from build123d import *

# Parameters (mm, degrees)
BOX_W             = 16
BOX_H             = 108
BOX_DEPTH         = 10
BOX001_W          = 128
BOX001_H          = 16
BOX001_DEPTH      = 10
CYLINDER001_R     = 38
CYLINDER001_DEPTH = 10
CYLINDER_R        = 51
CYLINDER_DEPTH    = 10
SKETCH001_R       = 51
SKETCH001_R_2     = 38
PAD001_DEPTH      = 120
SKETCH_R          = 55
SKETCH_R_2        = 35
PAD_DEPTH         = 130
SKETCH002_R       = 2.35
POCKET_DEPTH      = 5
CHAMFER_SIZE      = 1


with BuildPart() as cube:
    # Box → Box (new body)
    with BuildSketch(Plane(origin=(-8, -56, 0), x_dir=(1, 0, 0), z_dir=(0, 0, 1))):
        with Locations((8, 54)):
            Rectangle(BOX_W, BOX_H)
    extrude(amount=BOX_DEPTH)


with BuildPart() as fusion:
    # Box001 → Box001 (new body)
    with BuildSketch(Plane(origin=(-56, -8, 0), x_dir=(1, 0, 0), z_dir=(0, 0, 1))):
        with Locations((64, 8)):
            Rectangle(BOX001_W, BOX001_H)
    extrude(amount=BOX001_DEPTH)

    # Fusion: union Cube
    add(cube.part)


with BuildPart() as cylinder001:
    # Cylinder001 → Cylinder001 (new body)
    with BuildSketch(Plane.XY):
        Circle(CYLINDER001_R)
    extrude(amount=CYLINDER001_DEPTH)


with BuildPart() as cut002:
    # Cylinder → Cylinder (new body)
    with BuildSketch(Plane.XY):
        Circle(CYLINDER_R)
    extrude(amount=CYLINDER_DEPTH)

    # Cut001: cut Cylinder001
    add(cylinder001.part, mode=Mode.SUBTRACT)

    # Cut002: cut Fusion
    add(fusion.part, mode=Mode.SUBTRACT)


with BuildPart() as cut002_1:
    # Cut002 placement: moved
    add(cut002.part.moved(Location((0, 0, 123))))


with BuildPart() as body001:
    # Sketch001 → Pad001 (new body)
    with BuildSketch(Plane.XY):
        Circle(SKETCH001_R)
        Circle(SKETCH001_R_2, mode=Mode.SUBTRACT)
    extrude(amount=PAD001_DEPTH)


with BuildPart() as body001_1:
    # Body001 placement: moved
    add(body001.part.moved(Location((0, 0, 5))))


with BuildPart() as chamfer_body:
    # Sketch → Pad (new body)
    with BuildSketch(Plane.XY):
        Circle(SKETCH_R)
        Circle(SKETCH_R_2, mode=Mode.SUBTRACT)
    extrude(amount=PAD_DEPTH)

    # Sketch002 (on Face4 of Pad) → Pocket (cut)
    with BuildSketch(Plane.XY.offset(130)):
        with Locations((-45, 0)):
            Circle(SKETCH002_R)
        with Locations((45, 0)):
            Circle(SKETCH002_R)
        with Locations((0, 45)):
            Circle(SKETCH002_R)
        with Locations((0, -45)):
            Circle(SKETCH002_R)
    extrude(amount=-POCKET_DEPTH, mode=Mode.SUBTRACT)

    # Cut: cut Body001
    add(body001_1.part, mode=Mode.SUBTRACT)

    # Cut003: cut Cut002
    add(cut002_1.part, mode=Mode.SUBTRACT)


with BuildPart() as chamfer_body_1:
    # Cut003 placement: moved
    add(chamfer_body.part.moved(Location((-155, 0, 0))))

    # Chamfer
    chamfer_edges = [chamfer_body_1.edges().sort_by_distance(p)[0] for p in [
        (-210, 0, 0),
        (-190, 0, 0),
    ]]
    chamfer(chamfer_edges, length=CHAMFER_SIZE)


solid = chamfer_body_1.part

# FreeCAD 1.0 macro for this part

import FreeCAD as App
import Part
import Sketcher

V = App.Vector


def edges_at(feature, points):
    """Names of the edges that pass closest to the given points."""
    edges = feature.Shape.Edges
    near = lambda p: min(range(len(edges)), key=lambda i: edges[i].distToShape(Part.Vertex(*p))[0])
    return sorted({f"Edge{near(p) + 1}" for p in points})

doc = App.newDocument("Part")
body = doc.addObject("PartDesign::Body", "Body")

sketch1 = body.newObject("Sketcher::SketchObject", "Sketch")
sketch1.AttachmentSupport = (doc.getObject("XY_Plane"), [""])
sketch1.MapMode = "FlatFace"
sketch1.addGeometry([
    Part.LineSegment(V(-8, 52, 0), V(-8, -56, 0)),
    Part.LineSegment(V(-8, -56, 0), V(8, -56, 0)),
    Part.LineSegment(V(8, -56, 0), V(8, 52, 0)),
    Part.LineSegment(V(8, 52, 0), V(-8, 52, 0)),
], False)
sketch1.addConstraint([
    Sketcher.Constraint("Coincident", 0, 2, 1, 1),
    Sketcher.Constraint("Coincident", 1, 2, 2, 1),
    Sketcher.Constraint("Coincident", 2, 2, 3, 1),
    Sketcher.Constraint("Coincident", 3, 2, 0, 1),
    Sketcher.Constraint("Vertical", 0),
    Sketcher.Constraint("Horizontal", 1),
    Sketcher.Constraint("Vertical", 2),
    Sketcher.Constraint("Horizontal", 3),
    Sketcher.Constraint("DistanceX", 1, 1, 1, 2, 16.0),
    Sketcher.Constraint("DistanceY", 0, 2, 0, 1, 108.0),
    Sketcher.Constraint("DistanceX", 0, 2, -1, 1, 8.0),
    Sketcher.Constraint("DistanceY", 0, 2, -1, 1, 56.0),
])
pad1 = body.newObject("PartDesign::Pad", "Pad")
pad1.Profile = sketch1
pad1.Length = 10
body2 = doc.addObject("PartDesign::Body", "Body001")

sketch2 = body2.newObject("Sketcher::SketchObject", "Sketch001")
sketch2.AttachmentSupport = (doc.getObject("XY_Plane001"), [""])
sketch2.MapMode = "FlatFace"
sketch2.addGeometry([
    Part.LineSegment(V(-56, 8, 0), V(-56, -8, 0)),
    Part.LineSegment(V(-56, -8, 0), V(72, -8, 0)),
    Part.LineSegment(V(72, -8, 0), V(72, 8, 0)),
    Part.LineSegment(V(72, 8, 0), V(-56, 8, 0)),
], False)
sketch2.addConstraint([
    Sketcher.Constraint("Coincident", 0, 2, 1, 1),
    Sketcher.Constraint("Coincident", 1, 2, 2, 1),
    Sketcher.Constraint("Coincident", 2, 2, 3, 1),
    Sketcher.Constraint("Coincident", 3, 2, 0, 1),
    Sketcher.Constraint("Vertical", 0),
    Sketcher.Constraint("Horizontal", 1),
    Sketcher.Constraint("Vertical", 2),
    Sketcher.Constraint("Horizontal", 3),
    Sketcher.Constraint("DistanceX", 1, 1, 1, 2, 128.0),
    Sketcher.Constraint("DistanceY", 0, 2, 0, 1, 16.0),
    Sketcher.Constraint("DistanceX", 0, 2, -1, 1, 56.0),
    Sketcher.Constraint("DistanceY", 0, 2, -1, 1, 8.0),
])
pad2 = body2.newObject("PartDesign::Pad", "Pad001")
pad2.Profile = sketch2
pad2.Length = 10
doc.recompute()

boolean = body2.newObject("PartDesign::Boolean", "Boolean")
boolean.Type = "Fuse"
boolean.addObjects([body])
body3 = doc.addObject("PartDesign::Body", "Body002")

sketch3 = body3.newObject("Sketcher::SketchObject", "Sketch002")
sketch3.AttachmentSupport = (doc.getObject("XY_Plane002"), [""])
sketch3.MapMode = "FlatFace"
sketch3.addGeometry(Part.Circle(V(0, 0, 0), V(0, 0, 1), 38), False)
sketch3.addConstraint([
    Sketcher.Constraint("Coincident", 0, 3, -1, 1),
    Sketcher.Constraint("Diameter", 0, 76.0),
])
pad3 = body3.newObject("PartDesign::Pad", "Pad002")
pad3.Profile = sketch3
pad3.Length = 10
body4 = doc.addObject("PartDesign::Body", "Body003")
body4.AllowCompound = True

sketch4 = body4.newObject("Sketcher::SketchObject", "Sketch003")
sketch4.AttachmentSupport = (doc.getObject("XY_Plane003"), [""])
sketch4.MapMode = "FlatFace"
sketch4.addGeometry(Part.Circle(V(0, 0, 0), V(0, 0, 1), 51), False)
sketch4.addConstraint([
    Sketcher.Constraint("Coincident", 0, 3, -1, 1),
    Sketcher.Constraint("Diameter", 0, 102.0),
])
pad4 = body4.newObject("PartDesign::Pad", "Pad003")
pad4.Profile = sketch4
pad4.Length = 10
doc.recompute()

boolean2 = body4.newObject("PartDesign::Boolean", "Boolean001")
boolean2.Type = "Cut"
boolean2.addObjects([body3])
doc.recompute()

boolean3 = body4.newObject("PartDesign::Boolean", "Boolean002")
boolean3.Type = "Cut"
boolean3.addObjects([body2])
body5 = doc.addObject("PartDesign::Body", "Body004")
body5.AllowCompound = True
doc.recompute()

body4.Placement = App.Placement(V(0, 0, 123), App.Rotation(V(0, 0, 1), 0))
boolean4 = body5.newObject("PartDesign::Boolean", "Boolean003")
boolean4.Type = "Fuse"
boolean4.addObjects([body4])
body6 = doc.addObject("PartDesign::Body", "Body005")

sketch5 = body6.newObject("Sketcher::SketchObject", "Sketch004")
sketch5.AttachmentSupport = (doc.getObject("XY_Plane005"), [""])
sketch5.MapMode = "FlatFace"
sketch5.addGeometry([
    Part.Circle(V(0, 0, 0), V(0, 0, 1), 51),
    Part.Circle(V(0, 0, 0), V(0, 0, 1), 38),
], False)
sketch5.addConstraint([
    Sketcher.Constraint("Coincident", 0, 3, -1, 1),
    Sketcher.Constraint("Coincident", 1, 3, -1, 1),
    Sketcher.Constraint("Diameter", 0, 102.0),
    Sketcher.Constraint("Diameter", 1, 76.0),
])
pad5 = body6.newObject("PartDesign::Pad", "Pad004")
pad5.Profile = sketch5
pad5.Length = 120
body7 = doc.addObject("PartDesign::Body", "Body006")
doc.recompute()

body6.Placement = App.Placement(V(0, 0, 5), App.Rotation(V(0, 0, 1), 0))
boolean5 = body7.newObject("PartDesign::Boolean", "Boolean004")
boolean5.Type = "Fuse"
boolean5.addObjects([body6])
body8 = doc.addObject("PartDesign::Body", "Body007")

sketch6 = body8.newObject("Sketcher::SketchObject", "Sketch005")
sketch6.AttachmentSupport = (doc.getObject("XY_Plane007"), [""])
sketch6.MapMode = "FlatFace"
sketch6.addGeometry([
    Part.Circle(V(0, 0, 0), V(0, 0, 1), 55),
    Part.Circle(V(0, 0, 0), V(0, 0, 1), 35),
], False)
sketch6.addConstraint([
    Sketcher.Constraint("Coincident", 0, 3, -1, 1),
    Sketcher.Constraint("Coincident", 1, 3, -1, 1),
    Sketcher.Constraint("Diameter", 0, 110.0),
    Sketcher.Constraint("Diameter", 1, 70.0),
])
pad6 = body8.newObject("PartDesign::Pad", "Pad005")
pad6.Profile = sketch6
pad6.Length = 130

sketch7 = body8.newObject("Sketcher::SketchObject", "Sketch006")
sketch7.AttachmentSupport = (doc.getObject("XY_Plane007"), [""])
sketch7.MapMode = "FlatFace"
sketch7.AttachmentOffset = App.Placement(V(0, 0, 130), App.Rotation())
sketch7.addGeometry([
    Part.Circle(V(-45, 0, 0), V(0, 0, 1), 2.35),
    Part.Circle(V(45, 0, 0), V(0, 0, 1), 2.35),
    Part.Circle(V(0, 45, 0), V(0, 0, 1), 2.35),
    Part.Circle(V(0, -45, 0), V(0, 0, 1), 2.35),
], False)
sketch7.addConstraint([
    Sketcher.Constraint("Equal", 0, 1),
    Sketcher.Constraint("Equal", 1, 2),
    Sketcher.Constraint("Equal", 2, 3),
    Sketcher.Constraint("Symmetric", 0, 3, 1, 3, -1, 1),
    Sketcher.Constraint("Symmetric", 2, 3, 3, 3, -1, 1),
    Sketcher.Constraint("PointOnObject", 0, 3, -1),
    Sketcher.Constraint("PointOnObject", 2, 3, -2),
    Sketcher.Constraint("Diameter", 0, 4.7),
    Sketcher.Constraint("DistanceX", 0, 3, -1, 1, 45.0),
    Sketcher.Constraint("DistanceY", -1, 1, 2, 3, 45.0),
])
pocket1 = body8.newObject("PartDesign::Pocket", "Pocket")
pocket1.Profile = sketch7
pocket1.Length = 5
doc.recompute()

boolean6 = body8.newObject("PartDesign::Boolean", "Boolean005")
boolean6.Type = "Cut"
boolean6.addObjects([body7])
doc.recompute()

boolean7 = body8.newObject("PartDesign::Boolean", "Boolean006")
boolean7.Type = "Cut"
boolean7.addObjects([body5])
body9 = doc.addObject("PartDesign::Body", "Body008")
doc.recompute()

body8.Placement = App.Placement(V(-155, 0, 0), App.Rotation(V(0, 0, 1), 0))
boolean8 = body9.newObject("PartDesign::Boolean", "Boolean007")
boolean8.Type = "Fuse"
boolean8.addObjects([body8])
doc.recompute()

chamfer = body9.newObject("PartDesign::Chamfer", "Chamfer")
chamfer.Base = (boolean8, edges_at(boolean8, [(-210, 0, 0), (-190, 0, 0)]))
chamfer.Size = 1

doc.recompute()
